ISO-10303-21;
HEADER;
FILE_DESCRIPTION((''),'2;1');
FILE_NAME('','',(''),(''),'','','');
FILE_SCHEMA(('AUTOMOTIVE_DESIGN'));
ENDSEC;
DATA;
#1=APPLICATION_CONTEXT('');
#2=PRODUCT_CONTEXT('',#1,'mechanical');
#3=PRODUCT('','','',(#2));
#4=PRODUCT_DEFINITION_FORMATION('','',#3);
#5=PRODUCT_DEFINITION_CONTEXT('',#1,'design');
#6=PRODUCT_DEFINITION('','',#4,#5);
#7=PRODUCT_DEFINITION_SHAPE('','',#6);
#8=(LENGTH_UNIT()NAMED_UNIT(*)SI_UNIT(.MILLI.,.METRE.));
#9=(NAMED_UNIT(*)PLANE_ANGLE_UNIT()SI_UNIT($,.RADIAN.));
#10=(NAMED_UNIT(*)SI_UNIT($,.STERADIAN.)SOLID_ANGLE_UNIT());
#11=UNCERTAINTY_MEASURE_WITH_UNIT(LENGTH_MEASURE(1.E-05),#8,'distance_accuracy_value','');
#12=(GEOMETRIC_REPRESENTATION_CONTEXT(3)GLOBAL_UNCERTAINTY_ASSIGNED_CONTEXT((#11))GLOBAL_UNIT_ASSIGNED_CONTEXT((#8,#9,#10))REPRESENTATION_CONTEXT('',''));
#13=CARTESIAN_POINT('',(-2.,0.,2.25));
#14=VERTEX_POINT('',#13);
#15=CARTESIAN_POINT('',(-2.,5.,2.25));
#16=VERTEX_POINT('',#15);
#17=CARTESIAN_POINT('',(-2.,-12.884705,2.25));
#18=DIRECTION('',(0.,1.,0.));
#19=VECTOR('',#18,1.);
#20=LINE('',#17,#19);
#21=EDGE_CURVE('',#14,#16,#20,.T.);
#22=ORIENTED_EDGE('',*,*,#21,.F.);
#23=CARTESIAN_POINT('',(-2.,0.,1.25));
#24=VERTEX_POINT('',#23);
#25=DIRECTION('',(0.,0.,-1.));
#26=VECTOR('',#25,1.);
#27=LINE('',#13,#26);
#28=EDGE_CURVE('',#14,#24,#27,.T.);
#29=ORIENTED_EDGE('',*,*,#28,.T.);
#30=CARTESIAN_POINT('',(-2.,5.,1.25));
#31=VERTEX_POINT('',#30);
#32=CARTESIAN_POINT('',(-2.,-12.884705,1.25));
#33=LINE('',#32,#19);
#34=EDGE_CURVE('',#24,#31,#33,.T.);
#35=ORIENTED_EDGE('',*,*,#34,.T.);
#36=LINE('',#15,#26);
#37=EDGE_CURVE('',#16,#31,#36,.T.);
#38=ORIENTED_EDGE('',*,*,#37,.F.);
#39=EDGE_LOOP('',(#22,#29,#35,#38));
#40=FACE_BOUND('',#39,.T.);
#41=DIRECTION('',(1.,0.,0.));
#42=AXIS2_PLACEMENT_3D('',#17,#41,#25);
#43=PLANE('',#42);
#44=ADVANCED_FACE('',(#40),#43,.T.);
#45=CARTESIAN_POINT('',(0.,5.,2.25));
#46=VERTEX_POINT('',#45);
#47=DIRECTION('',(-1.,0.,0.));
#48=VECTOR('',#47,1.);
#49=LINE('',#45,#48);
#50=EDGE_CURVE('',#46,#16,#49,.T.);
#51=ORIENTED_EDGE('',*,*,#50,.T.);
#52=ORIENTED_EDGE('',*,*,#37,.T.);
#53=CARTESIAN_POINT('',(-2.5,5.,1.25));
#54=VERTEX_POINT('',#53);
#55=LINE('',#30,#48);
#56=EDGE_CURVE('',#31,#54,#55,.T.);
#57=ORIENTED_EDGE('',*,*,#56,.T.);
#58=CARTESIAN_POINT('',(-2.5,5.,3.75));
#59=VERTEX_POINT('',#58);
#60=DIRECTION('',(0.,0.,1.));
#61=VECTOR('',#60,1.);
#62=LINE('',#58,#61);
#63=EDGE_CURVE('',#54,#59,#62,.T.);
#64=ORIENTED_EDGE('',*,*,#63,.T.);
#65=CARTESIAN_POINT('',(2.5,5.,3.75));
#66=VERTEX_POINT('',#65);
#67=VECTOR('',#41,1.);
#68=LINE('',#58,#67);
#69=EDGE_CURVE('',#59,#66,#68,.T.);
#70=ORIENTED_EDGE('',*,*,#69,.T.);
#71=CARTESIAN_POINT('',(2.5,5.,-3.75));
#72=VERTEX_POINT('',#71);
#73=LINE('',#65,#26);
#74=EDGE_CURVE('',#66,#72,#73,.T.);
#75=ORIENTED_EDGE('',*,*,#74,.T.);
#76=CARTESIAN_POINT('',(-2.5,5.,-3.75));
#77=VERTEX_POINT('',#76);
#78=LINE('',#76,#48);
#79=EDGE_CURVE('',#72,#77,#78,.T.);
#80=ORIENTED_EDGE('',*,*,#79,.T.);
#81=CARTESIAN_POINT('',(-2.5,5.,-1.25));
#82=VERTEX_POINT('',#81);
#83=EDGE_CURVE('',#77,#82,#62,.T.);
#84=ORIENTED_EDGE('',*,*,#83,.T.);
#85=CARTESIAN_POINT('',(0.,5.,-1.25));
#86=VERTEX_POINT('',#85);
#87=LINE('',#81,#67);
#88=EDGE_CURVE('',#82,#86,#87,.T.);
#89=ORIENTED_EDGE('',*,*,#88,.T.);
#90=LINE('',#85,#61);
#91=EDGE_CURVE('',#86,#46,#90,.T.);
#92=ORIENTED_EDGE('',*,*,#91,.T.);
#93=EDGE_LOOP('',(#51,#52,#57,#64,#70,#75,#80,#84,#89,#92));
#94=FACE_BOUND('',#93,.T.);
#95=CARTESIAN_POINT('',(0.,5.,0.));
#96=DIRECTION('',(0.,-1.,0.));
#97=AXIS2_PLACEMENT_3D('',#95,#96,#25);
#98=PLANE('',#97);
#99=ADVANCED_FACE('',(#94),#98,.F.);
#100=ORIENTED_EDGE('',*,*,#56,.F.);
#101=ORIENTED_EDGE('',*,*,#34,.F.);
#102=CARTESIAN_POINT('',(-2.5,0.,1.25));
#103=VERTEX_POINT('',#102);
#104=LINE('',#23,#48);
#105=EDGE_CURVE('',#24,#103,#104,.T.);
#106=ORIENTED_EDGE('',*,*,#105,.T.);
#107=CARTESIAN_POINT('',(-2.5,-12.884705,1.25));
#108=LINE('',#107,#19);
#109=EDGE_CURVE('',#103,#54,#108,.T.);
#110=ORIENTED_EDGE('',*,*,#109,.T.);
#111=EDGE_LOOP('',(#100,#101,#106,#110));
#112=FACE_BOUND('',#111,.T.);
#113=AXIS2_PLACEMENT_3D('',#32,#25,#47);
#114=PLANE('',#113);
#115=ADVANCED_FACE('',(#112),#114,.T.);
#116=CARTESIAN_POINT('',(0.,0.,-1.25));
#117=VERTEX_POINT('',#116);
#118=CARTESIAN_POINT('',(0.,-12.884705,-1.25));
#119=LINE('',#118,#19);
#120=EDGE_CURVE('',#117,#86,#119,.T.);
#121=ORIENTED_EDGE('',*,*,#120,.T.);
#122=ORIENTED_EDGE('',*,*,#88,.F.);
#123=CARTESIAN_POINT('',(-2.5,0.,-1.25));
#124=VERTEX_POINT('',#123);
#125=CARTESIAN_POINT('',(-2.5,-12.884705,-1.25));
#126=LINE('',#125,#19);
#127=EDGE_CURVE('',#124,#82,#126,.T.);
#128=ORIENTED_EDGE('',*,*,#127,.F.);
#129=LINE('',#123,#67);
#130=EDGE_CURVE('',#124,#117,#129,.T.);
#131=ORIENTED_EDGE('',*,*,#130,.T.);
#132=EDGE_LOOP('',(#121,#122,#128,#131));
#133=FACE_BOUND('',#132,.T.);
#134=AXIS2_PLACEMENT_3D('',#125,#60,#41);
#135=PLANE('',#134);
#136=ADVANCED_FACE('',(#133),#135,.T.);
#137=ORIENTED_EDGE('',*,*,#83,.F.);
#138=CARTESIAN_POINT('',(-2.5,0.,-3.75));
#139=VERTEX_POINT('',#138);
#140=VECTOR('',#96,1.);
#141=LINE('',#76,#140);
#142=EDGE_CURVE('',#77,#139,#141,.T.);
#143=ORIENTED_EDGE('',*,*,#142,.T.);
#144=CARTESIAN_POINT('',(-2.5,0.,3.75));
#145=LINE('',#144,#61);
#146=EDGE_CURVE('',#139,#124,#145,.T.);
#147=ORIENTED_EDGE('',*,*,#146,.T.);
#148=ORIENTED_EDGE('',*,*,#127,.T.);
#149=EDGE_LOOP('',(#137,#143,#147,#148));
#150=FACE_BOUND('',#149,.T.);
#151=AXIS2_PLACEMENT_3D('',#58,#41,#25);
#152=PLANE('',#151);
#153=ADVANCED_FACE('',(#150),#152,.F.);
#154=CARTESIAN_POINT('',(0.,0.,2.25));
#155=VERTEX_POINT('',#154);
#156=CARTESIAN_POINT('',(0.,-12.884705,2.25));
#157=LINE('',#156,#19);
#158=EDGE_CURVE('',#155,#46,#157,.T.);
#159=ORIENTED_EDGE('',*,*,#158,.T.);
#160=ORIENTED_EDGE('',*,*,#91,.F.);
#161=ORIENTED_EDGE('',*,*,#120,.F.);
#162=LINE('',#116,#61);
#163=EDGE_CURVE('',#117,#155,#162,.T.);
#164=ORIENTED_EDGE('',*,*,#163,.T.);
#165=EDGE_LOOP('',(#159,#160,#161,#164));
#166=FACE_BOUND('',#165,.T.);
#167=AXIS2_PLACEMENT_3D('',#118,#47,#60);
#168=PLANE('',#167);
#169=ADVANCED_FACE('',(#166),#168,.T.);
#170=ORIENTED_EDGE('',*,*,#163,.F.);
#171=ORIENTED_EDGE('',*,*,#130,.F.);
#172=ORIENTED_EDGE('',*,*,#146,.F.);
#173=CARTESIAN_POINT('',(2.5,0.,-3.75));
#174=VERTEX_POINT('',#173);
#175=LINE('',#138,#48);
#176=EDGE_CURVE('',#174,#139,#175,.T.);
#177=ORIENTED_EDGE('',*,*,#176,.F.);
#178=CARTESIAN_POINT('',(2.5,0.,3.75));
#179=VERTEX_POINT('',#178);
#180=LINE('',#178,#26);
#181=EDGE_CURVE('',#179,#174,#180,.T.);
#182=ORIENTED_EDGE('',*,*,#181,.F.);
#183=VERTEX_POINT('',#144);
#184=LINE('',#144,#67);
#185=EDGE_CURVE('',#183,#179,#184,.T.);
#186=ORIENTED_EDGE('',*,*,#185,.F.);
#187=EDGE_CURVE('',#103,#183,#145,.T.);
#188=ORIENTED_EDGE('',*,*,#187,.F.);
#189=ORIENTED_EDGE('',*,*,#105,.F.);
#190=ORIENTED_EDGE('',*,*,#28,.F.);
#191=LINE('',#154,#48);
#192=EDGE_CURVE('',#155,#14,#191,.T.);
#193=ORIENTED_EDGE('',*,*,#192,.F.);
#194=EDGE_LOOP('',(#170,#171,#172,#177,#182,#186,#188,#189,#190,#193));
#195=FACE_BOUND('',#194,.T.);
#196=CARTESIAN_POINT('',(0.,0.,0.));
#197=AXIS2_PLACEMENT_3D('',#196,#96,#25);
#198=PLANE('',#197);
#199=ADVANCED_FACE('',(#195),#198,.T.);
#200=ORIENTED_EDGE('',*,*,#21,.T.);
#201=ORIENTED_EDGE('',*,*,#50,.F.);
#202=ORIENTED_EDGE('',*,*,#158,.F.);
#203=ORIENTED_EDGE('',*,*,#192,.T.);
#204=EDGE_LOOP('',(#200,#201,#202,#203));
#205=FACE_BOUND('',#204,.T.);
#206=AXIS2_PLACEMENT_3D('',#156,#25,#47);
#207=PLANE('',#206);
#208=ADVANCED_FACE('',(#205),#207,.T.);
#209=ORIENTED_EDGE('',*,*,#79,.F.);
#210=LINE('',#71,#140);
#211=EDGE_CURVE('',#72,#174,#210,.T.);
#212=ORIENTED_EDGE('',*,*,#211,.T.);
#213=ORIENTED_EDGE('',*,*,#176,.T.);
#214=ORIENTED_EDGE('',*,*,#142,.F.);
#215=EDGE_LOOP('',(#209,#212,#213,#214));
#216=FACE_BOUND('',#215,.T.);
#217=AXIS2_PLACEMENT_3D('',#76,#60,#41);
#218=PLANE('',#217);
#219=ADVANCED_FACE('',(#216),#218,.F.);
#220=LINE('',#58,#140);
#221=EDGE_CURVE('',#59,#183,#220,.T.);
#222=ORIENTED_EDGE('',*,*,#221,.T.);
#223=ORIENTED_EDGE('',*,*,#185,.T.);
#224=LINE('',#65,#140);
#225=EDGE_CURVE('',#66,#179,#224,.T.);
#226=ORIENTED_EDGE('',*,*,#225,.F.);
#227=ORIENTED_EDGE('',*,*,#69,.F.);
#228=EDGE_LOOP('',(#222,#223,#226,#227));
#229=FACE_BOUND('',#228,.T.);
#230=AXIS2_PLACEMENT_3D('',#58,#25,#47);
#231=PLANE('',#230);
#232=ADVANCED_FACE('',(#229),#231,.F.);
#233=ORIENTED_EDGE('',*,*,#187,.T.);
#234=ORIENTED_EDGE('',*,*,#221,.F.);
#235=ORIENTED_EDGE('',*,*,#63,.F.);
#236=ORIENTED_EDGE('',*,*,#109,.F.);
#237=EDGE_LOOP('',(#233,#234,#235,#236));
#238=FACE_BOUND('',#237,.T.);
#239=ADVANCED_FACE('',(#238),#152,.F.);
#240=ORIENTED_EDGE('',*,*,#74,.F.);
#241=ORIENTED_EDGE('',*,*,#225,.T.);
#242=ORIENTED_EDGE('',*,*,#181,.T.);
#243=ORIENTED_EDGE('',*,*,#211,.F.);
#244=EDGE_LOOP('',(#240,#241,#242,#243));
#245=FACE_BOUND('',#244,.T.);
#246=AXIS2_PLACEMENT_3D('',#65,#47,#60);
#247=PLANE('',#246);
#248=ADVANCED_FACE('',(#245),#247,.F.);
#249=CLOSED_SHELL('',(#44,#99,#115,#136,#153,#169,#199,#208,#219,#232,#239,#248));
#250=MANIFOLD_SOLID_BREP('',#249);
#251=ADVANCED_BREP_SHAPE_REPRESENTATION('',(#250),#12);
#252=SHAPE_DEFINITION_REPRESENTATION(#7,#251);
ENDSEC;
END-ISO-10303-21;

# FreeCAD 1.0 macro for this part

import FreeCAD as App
import Part
import Sketcher
from FreeCAD import Vector

doc = App.newDocument("Part")
params = doc.addObject("Spreadsheet::Sheet", "Params")
for row, (alias, value) in enumerate([
    ("sketch1_width", "5 mm"),
    ("sketch1_height", "7.5 mm"),
    ("pad1_length", "5 mm"),
    ("sketch2_width", "2 mm"),
    ("sketch2_height", "1 mm"),
    ("sketch2_height2", "3.5 mm"),
], start=1):
    params.set(f"A{row}", alias)
    params.set(f"B{row}", "=" + value)
    params.setAlias(f"B{row}", alias)

body = doc.addObject("PartDesign::Body", "Body")

# Sketch on XZ plane
sketch1 = doc.addObject("Sketcher::SketchObject", "Sketch")
body.addObject(sketch1)
sketch1.AttachmentSupport = (doc.XZ_Plane, [""])
sketch1.MapMode = "FlatFace"
sketch1.addGeometry(Part.LineSegment(Vector(-2, -4, 0), Vector(-2, 4, 0)), False)
sketch1.addGeometry(Part.LineSegment(Vector(-2, 4, 0), Vector(2, 4, 0)), False)
sketch1.addGeometry(Part.LineSegment(Vector(2, 4, 0), Vector(2, -4, 0)), False)
sketch1.addGeometry(Part.LineSegment(Vector(2, -4, 0), Vector(-2, -4, 0)), False)
sketch1.addConstraint(Sketcher.Constraint("Coincident", 0, 2, 1, 1))
sketch1.addConstraint(Sketcher.Constraint("Coincident", 1, 2, 2, 1))
sketch1.addConstraint(Sketcher.Constraint("Coincident", 2, 2, 3, 1))
sketch1.addConstraint(Sketcher.Constraint("Coincident", 3, 2, 0, 1))
sketch1.addConstraint(Sketcher.Constraint("Vertical", 0))
sketch1.addConstraint(Sketcher.Constraint("Horizontal", 1))
sketch1.addConstraint(Sketcher.Constraint("Vertical", 2))
sketch1.addConstraint(Sketcher.Constraint("Horizontal", 3))
sketch1.addConstraint(Sketcher.Constraint("Symmetric", 0, 2, 2, 2, -1, 1))
sketch1.addConstraint(Sketcher.Constraint("DistanceX", 1, 1, 1, 2, 5.0))
sketch1.addConstraint(Sketcher.Constraint("DistanceY", 0, 1, 0, 2, 7.5))
sketch1.setExpression("Constraints[9]", "Params.sketch1_width")
sketch1.setExpression("Constraints[10]", "Params.sketch1_height")
pad1 = doc.addObject("PartDesign::Pad", "Pad")
body.addObject(pad1)
pad1.Profile = sketch1
pad1.setExpression("Length", "Params.pad1_length")
pad1.Reversed = True

# Sketch on XZ plane
sketch2 = doc.addObject("Sketcher::SketchObject", "Sketch001")
body.addObject(sketch2)
sketch2.AttachmentSupport = (doc.XZ_Plane, [""])
sketch2.MapMode = "FlatFace"
sketch2.addGeometry(Part.LineSegment(Vector(0, -1.2, 0), Vector(0, 2.2, 0)), False)
sketch2.addGeometry(Part.LineSegment(Vector(0, 2.2, 0), Vector(-2, 2.2, 0)), False)
sketch2.addGeometry(Part.LineSegment(Vector(-2, 2.2, 0), Vector(-2, 1.2, 0)), False)
sketch2.addGeometry(Part.LineSegment(Vector(-2, 1.2, 0), Vector(-74.9, 1.2, 0)), False)
sketch2.addGeometry(Part.LineSegment(Vector(-74.9, 1.2, 0), Vector(-74.9, -1.2, 0)), False)
sketch2.addGeometry(Part.LineSegment(Vector(-74.9, -1.2, 0), Vector(0, -1.2, 0)), False)
sketch2.addConstraint(Sketcher.Constraint("Coincident", 0, 2, 1, 1))
sketch2.addConstraint(Sketcher.Constraint("Coincident", 1, 2, 2, 1))
sketch2.addConstraint(Sketcher.Constraint("Coincident", 2, 2, 3, 1))
sketch2.addConstraint(Sketcher.Constraint("Coincident", 3, 2, 4, 1))
sketch2.addConstraint(Sketcher.Constraint("Coincident", 4, 2, 5, 1))
sketch2.addConstraint(Sketcher.Constraint("Coincident", 5, 2, 0, 1))
sketch2.addConstraint(Sketcher.Constraint("Vertical", 0))
sketch2.addConstraint(Sketcher.Constraint("Horizontal", 1))
sketch2.addConstraint(Sketcher.Constraint("Vertical", 2))
sketch2.addConstraint(Sketcher.Constraint("Horizontal", 3))
sketch2.addConstraint(Sketcher.Constraint("Vertical", 4))
sketch2.addConstraint(Sketcher.Constraint("Horizontal", 5))
sketch2.addConstraint(Sketcher.Constraint("PointOnObject", 0, 2, -2))
sketch2.addConstraint(Sketcher.Constraint("DistanceX", 1, 2, 1, 1, 2.0))
sketch2.addConstraint(Sketcher.Constraint("DistanceY", 2, 2, 2, 1, 1.0))
sketch2.addConstraint(Sketcher.Constraint("DistanceY", 0, 1, 0, 2, 3.5))
sketch2.addConstraint(Sketcher.Constraint("DistanceY", -1, 1, 0, 2, 2.25))
sketch2.addConstraint(Sketcher.Constraint("DistanceX", 3, 2, 3, 1, 72.926407))
sketch2.setExpression("Constraints[13]", "Params.sketch2_width")
sketch2.setExpression("Constraints[14]", "Params.sketch2_height")
sketch2.setExpression("Constraints[15]", "Params.sketch2_height2")
pocket1 = doc.addObject("PartDesign::Pocket", "Pocket")
body.addObject(pocket1)
pocket1.Profile = sketch2
pocket1.Type = "ThroughAll"
pocket1.Midplane = True

doc.recompute()
